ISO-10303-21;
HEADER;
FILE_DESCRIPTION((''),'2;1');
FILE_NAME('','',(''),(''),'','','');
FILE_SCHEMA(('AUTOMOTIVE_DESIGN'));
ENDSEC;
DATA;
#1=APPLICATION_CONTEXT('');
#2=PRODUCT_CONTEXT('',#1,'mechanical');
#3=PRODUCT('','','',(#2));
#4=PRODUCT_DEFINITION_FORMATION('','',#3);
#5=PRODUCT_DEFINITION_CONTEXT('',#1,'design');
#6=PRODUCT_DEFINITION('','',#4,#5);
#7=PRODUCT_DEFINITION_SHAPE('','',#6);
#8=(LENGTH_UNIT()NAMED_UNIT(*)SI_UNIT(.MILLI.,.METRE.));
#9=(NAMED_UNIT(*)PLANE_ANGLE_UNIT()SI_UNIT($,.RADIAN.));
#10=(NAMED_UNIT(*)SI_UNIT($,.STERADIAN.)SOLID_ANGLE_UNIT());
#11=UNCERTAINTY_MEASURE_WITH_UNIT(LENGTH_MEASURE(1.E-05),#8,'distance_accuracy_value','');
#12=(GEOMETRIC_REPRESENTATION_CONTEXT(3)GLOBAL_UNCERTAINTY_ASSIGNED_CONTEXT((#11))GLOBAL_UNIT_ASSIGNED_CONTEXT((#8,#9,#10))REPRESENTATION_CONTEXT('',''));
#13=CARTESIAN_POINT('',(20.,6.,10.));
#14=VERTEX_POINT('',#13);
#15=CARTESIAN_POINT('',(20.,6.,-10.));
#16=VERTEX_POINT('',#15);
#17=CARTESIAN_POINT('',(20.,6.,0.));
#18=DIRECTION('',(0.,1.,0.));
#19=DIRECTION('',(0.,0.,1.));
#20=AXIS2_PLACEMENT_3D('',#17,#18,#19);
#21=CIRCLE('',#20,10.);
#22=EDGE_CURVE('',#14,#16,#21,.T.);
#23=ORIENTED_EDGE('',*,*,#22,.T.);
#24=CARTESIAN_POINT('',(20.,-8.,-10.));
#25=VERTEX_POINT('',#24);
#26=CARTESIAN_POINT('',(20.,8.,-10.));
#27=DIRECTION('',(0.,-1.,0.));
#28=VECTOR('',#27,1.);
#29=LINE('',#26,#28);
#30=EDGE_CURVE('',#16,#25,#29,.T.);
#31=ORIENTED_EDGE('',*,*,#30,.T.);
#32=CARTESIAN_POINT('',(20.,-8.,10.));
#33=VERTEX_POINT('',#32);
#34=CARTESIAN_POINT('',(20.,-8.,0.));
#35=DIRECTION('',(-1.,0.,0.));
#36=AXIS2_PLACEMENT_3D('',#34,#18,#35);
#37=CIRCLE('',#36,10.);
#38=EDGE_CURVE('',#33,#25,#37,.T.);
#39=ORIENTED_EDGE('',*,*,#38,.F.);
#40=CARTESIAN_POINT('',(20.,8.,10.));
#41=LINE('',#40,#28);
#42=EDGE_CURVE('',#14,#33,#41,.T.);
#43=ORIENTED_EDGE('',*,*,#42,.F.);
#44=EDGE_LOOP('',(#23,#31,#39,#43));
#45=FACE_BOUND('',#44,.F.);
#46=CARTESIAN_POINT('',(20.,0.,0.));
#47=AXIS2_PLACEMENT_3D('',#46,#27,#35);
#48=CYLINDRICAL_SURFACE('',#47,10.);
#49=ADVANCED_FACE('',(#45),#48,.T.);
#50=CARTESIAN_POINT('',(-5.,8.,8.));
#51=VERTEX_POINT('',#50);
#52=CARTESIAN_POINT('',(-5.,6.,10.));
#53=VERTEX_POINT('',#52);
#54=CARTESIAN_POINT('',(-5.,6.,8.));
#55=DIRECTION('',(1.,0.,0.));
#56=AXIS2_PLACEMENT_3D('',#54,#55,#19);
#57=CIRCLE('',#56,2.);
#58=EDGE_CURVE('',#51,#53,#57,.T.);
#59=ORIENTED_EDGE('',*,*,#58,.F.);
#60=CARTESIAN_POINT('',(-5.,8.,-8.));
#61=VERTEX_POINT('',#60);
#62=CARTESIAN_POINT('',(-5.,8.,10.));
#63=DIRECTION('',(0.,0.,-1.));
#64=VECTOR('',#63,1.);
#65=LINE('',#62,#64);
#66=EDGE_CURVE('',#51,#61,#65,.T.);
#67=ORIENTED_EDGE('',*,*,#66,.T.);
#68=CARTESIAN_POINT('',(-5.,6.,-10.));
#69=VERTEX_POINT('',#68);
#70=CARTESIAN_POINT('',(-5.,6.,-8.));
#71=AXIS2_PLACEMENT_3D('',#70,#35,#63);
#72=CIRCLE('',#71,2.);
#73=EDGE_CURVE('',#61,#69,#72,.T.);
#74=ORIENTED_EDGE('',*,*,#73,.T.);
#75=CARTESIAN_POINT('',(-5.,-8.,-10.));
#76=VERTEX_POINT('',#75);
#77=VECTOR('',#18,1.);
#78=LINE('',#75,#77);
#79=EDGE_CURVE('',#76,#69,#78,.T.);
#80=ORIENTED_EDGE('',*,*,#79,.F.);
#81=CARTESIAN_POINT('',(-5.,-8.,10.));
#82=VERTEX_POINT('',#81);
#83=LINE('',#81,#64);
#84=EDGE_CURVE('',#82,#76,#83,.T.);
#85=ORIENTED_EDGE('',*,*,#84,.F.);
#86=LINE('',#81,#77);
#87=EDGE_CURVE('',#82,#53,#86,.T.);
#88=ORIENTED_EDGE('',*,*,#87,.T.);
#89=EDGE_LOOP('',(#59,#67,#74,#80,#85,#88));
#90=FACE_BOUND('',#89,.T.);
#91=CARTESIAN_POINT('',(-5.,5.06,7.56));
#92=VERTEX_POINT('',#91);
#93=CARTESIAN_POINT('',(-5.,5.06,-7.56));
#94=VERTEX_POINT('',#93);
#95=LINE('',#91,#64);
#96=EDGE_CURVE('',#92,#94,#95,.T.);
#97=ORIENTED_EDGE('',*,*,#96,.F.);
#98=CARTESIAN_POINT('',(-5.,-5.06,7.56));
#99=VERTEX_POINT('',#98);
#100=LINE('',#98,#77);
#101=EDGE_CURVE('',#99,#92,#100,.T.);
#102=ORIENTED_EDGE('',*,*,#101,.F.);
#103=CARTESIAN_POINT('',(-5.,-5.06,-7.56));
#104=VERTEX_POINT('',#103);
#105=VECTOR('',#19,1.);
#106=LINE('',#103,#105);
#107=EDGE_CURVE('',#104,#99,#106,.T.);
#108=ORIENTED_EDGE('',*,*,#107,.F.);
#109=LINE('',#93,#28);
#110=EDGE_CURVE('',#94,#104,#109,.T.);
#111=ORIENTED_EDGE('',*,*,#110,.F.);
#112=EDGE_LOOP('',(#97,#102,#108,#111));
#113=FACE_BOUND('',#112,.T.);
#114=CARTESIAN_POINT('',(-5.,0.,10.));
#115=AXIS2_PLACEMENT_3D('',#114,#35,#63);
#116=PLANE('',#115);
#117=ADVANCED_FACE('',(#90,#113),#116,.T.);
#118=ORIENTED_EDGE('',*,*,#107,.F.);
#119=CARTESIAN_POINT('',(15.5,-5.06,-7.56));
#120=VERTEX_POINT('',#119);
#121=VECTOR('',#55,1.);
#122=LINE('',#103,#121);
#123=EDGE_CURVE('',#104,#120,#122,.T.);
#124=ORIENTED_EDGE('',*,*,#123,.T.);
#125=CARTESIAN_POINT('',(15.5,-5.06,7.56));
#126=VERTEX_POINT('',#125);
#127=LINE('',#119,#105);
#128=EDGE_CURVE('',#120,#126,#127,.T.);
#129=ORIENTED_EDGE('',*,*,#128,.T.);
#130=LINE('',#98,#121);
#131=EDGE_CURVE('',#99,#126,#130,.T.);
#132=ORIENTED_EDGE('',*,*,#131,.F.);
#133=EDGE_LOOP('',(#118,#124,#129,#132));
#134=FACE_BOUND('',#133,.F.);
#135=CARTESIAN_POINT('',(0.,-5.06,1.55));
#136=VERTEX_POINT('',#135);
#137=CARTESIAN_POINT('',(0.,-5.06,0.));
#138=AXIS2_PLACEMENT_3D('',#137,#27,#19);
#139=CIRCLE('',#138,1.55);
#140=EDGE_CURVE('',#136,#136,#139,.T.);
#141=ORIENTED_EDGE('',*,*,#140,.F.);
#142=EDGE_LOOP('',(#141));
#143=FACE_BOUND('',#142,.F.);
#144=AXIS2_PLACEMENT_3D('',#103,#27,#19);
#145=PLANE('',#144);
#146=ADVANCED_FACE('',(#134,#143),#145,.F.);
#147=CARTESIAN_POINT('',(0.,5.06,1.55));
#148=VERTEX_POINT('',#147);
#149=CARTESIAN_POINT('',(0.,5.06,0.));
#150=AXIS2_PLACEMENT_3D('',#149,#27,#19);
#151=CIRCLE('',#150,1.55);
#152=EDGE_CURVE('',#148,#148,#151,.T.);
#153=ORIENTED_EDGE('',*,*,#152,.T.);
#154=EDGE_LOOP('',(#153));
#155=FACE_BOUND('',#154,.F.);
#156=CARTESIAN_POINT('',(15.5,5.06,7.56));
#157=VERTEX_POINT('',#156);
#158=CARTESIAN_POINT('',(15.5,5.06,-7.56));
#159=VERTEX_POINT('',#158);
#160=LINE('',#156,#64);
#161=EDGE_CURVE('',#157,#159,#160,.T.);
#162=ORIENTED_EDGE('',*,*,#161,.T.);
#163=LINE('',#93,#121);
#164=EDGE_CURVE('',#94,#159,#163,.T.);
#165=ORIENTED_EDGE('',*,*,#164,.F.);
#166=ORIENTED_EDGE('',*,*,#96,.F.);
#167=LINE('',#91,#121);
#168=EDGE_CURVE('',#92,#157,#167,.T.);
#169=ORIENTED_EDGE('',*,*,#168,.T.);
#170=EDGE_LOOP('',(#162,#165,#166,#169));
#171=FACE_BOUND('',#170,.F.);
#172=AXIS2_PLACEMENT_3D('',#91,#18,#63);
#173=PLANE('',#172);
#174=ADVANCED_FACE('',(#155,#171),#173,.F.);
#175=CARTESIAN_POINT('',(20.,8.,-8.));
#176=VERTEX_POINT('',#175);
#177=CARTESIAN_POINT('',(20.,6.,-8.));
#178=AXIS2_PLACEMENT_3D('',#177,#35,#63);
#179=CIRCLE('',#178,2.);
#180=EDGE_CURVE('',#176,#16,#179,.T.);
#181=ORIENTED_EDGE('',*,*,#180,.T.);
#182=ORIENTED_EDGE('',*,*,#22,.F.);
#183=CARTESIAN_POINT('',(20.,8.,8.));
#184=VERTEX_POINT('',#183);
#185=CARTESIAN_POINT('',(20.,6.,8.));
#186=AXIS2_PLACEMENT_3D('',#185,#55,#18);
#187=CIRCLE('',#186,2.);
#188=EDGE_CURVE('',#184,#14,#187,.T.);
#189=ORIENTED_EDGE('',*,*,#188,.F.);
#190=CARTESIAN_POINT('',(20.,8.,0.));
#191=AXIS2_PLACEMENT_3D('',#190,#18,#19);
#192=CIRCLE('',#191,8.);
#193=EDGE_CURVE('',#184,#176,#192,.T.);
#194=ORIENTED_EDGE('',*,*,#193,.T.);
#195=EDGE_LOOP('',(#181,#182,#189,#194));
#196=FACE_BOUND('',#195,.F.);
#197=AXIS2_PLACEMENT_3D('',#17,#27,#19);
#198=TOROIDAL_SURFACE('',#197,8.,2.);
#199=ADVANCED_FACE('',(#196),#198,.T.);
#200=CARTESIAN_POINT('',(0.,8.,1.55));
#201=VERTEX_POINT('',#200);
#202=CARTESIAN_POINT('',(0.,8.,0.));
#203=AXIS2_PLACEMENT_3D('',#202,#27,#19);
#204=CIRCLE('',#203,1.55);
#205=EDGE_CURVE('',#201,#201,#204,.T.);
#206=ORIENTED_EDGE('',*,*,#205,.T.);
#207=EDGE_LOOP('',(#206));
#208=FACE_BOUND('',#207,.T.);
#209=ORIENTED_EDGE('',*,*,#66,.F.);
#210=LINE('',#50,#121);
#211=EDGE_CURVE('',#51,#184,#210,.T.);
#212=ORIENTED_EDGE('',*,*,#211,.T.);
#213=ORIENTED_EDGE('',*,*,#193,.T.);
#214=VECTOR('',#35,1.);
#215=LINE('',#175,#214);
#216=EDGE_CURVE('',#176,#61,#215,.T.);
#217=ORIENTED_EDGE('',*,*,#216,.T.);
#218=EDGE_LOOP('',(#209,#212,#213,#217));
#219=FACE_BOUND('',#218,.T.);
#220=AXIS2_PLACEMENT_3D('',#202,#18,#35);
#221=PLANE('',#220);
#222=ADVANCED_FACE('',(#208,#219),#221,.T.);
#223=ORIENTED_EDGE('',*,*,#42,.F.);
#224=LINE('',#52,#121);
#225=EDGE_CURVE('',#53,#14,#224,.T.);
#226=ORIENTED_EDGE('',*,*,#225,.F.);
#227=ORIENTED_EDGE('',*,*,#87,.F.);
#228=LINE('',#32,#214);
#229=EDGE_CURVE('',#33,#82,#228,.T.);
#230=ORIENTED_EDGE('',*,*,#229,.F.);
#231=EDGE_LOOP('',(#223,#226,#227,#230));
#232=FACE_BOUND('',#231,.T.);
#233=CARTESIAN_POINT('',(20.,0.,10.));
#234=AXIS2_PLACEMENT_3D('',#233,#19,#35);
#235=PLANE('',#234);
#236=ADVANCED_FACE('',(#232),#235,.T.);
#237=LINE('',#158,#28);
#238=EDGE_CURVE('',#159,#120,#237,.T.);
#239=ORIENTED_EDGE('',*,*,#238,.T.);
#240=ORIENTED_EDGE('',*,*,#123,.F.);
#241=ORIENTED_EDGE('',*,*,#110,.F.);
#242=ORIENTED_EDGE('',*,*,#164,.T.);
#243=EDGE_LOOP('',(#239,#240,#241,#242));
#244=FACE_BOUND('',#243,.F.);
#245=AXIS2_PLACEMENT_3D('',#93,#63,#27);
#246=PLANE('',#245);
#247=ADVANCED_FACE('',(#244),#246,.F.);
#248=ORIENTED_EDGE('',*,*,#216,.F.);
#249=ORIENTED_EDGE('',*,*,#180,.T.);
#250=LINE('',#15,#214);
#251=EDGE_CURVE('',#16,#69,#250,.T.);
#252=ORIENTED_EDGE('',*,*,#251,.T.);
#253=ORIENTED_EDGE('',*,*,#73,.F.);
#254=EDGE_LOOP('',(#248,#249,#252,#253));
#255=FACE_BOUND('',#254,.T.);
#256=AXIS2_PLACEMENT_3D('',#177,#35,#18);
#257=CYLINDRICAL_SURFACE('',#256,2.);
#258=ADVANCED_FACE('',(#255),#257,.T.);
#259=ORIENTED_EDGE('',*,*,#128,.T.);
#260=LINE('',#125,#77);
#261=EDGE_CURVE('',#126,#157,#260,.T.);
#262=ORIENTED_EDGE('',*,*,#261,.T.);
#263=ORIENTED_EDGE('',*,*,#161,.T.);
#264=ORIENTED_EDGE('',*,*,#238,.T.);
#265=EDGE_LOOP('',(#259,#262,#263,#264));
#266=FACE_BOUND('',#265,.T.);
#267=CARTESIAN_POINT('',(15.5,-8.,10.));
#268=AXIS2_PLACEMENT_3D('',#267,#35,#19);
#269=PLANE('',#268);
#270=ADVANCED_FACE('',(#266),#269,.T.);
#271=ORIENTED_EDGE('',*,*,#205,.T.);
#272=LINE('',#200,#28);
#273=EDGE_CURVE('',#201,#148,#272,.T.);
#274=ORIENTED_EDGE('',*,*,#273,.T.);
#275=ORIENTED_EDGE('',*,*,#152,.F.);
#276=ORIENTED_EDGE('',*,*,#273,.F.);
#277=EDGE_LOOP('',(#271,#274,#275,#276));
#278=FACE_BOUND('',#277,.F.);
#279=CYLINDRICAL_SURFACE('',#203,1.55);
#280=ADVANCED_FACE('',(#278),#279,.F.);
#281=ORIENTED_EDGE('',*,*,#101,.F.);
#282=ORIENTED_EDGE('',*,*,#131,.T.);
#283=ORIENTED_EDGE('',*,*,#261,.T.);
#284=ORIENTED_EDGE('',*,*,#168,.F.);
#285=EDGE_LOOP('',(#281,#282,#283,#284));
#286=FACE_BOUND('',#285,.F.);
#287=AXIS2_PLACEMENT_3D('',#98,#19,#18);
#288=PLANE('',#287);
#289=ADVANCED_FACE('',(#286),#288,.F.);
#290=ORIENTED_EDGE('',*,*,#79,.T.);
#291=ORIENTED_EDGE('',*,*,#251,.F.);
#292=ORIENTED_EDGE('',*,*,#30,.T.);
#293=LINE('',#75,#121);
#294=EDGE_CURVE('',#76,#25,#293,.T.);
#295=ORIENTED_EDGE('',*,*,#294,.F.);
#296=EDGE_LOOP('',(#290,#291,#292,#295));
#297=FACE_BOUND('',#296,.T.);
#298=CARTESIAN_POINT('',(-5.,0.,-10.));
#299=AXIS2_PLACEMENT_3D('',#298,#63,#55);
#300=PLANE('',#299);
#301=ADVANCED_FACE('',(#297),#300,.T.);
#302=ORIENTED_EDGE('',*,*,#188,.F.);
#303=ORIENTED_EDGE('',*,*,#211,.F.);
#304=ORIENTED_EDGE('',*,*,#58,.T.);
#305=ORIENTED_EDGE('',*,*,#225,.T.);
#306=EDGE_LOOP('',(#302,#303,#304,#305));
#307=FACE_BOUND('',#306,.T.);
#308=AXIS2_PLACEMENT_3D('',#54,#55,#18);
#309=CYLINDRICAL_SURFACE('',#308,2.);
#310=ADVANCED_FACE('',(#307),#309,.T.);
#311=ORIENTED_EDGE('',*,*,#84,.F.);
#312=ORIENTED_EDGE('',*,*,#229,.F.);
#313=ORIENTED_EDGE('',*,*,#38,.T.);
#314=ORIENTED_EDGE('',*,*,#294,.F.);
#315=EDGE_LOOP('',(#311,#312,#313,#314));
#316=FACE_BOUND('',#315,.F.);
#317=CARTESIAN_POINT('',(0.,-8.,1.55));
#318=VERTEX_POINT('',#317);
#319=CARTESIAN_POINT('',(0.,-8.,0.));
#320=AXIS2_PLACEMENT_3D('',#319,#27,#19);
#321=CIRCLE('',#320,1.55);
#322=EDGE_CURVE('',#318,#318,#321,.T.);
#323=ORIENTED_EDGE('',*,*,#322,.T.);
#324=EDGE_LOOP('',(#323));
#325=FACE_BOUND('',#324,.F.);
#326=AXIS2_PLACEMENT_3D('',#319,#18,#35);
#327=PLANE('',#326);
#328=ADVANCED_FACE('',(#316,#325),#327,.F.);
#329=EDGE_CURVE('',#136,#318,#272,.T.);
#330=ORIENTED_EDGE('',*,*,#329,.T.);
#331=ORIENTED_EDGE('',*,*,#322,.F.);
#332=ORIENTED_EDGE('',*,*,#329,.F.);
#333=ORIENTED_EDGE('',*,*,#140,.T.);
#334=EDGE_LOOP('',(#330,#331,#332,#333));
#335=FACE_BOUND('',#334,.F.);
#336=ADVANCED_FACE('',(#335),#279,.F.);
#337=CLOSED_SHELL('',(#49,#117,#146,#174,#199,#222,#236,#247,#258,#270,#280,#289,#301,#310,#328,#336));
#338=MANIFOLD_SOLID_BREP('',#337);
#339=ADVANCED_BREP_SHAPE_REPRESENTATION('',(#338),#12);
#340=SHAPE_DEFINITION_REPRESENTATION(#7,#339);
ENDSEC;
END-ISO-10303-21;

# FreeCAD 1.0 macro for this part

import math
import FreeCAD as App
import Part
import Sketcher


def edges_at(feature, points):
    """Names of the edges that pass closest to the given points."""
    edges = feature.Shape.Edges
    near = lambda p: min(range(len(edges)), key=lambda i: edges[i].distToShape(Part.Vertex(*p))[0])
    return sorted({f"Edge{near(p) + 1}" for p in points})

doc = App.newDocument("Part")
body = doc.addObject("PartDesign::Body", "Body")

# Sketch on XZ plane
sketch1 = body.newObject("Sketcher::SketchObject", "Sketch")
sketch1.AttachmentSupport = (doc.getObject("XZ_Plane"), [""])
sketch1.MapMode = "FlatFace"
sketch1.addGeometry([
    Part.LineSegment(App.Vector(20, -10, 0), App.Vector(-5, -10, 0)),
    Part.LineSegment(App.Vector(-5, -10, 0), App.Vector(-5, 10, 0)),
    Part.LineSegment(App.Vector(-5, 10, 0), App.Vector(20, 10, 0)),
    Part.ArcOfCircle(Part.Circle(App.Vector(20, 0, 0), App.Vector(0, 0, 1), 10), math.radians(-90), math.radians(90)),
], False)
sketch1.addConstraint([
    Sketcher.Constraint("Coincident", 0, 2, 1, 1),
    Sketcher.Constraint("Coincident", 1, 2, 2, 1),
    Sketcher.Constraint("Tangent", 2, 2, 3, 2),
    Sketcher.Constraint("Tangent", 3, 1, 0, 1),
    Sketcher.Constraint("Horizontal", 0),
    Sketcher.Constraint("Vertical", 1),
    Sketcher.Constraint("Horizontal", 2),
    Sketcher.Constraint("PointOnObject", 3, 3, -1),
    Sketcher.Constraint("Radius", 3, 10.0),
    Sketcher.Constraint("DistanceX", -1, 1, 3, 3, 20.0),
    Sketcher.Constraint("DistanceX", 0, 2, -1, 1, 5.0),
])
pad1 = body.newObject("PartDesign::Pad", "Pad")
pad1.Profile = sketch1
pad1.Length = 16
pad1.Midplane = True

# Sketch on XZ plane
sketch2 = body.newObject("Sketcher::SketchObject", "Sketch001")
sketch2.AttachmentSupport = (doc.getObject("XZ_Plane"), [""])
sketch2.MapMode = "FlatFace"
sketch2.AttachmentOffset = App.Placement(App.Vector(0, 0, -8), App.Rotation())
sketch2.addGeometry(Part.Circle(App.Vector(0, 0, 0), App.Vector(0, 0, 1), 1.6), False)
sketch2.addConstraint([
    Sketcher.Constraint("Coincident", 0, 3, -1, 1),
    Sketcher.Constraint("Diameter", 0, 3.1),
])
doc.recompute()
hole = body.newObject("PartDesign::Hole", "Hole")
hole.Profile = sketch2
hole.ThreadType = "None"
hole.Diameter = 3.1
hole.DepthType = "ThroughAll"
hole.Reversed = True

# Sketch on YZ plane
sketch3 = body.newObject("Sketcher::SketchObject", "Sketch002")
sketch3.AttachmentSupport = (doc.getObject("YZ_Plane"), [""])
sketch3.MapMode = "FlatFace"
sketch3.AttachmentOffset = App.Placement(App.Vector(0, 0, -5), App.Rotation())
sketch3.addGeometry([
    Part.LineSegment(App.Vector(5, -8, 0), App.Vector(-5, -8, 0)),
    Part.LineSegment(App.Vector(-5, -8, 0), App.Vector(-5, 8, 0)),
    Part.LineSegment(App.Vector(-5, 8, 0), App.Vector(5, 8, 0)),
    Part.LineSegment(App.Vector(5, 8, 0), App.Vector(5, -8, 0)),
], False)
sketch3.addConstraint([
    Sketcher.Constraint("Coincident", 0, 2, 1, 1),
    Sketcher.Constraint("Coincident", 1, 2, 2, 1),
    Sketcher.Constraint("Coincident", 2, 2, 3, 1),
    Sketcher.Constraint("Coincident", 3, 2, 0, 1),
    Sketcher.Constraint("Horizontal", 0),
    Sketcher.Constraint("Vertical", 1),
    Sketcher.Constraint("Horizontal", 2),
    Sketcher.Constraint("Vertical", 3),
    Sketcher.Constraint("Symmetric", 0, 2, 2, 2, -1, 1),
    Sketcher.Constraint("DistanceX", 0, 2, 0, 1, 10.12),
    Sketcher.Constraint("DistanceY", 1, 1, 1, 2, 15.12),
])
pocket1 = body.newObject("PartDesign::Pocket", "Pocket")
pocket1.Profile = sketch3
pocket1.Length = 20.5
pocket1.Reversed = True
doc.recompute()

fillet = body.newObject("PartDesign::Fillet", "Fillet")
fillet.Base = (pocket1, edges_at(pocket1, [(30, 8, 0), (7.5, 8, -10), (7.5, 8, 10)]))
fillet.Radius = 2

doc.recompute()
